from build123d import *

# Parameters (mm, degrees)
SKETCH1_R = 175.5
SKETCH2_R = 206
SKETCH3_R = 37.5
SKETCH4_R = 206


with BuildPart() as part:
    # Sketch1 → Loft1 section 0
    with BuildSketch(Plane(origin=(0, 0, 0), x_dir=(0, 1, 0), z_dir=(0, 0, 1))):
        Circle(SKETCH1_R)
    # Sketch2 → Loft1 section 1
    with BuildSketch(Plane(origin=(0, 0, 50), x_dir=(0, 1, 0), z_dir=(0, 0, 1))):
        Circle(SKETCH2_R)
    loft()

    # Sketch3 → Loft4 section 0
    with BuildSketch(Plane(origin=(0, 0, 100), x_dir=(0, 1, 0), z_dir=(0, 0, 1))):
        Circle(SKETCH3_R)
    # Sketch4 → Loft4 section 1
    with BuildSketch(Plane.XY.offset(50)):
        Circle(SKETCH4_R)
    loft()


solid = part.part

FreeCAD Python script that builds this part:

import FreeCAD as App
import Part
import Sketcher
from FreeCAD import Vector

doc = App.newDocument("Part")
body = doc.addObject("PartDesign::Body", "Body")

sketch1 = doc.addObject("Sketcher::SketchObject", "Sketch")
body.addObject(sketch1)
sketch1.AttachmentSupport = (doc.XY_Plane, [""])
sketch1.MapMode = "FlatFace"
sketch1.addGeometry(Part.Circle(Vector(0, 0, 0), Vector(0, 0, 1), 176), False)
sketch1.addConstraint([
    Sketcher.Constraint("Coincident", 0, 3, -1, 1),
    Sketcher.Constraint("Diameter", 0, 351.0),
])

sketch2 = doc.addObject("Sketcher::SketchObject", "Sketch001")
body.addObject(sketch2)
sketch2.AttachmentSupport = (doc.XY_Plane, [""])
sketch2.MapMode = "FlatFace"
sketch2.AttachmentOffset = App.Placement(Vector(0, 0, 50), App.Rotation())
sketch2.addGeometry(Part.Circle(Vector(0, 0, 0), Vector(0, 0, 1), 206), False)
sketch2.addConstraint([
    Sketcher.Constraint("Coincident", 0, 3, -1, 1),
    Sketcher.Constraint("Diameter", 0, 412.0),
])

additiveloft = doc.addObject("PartDesign::AdditiveLoft", "AdditiveLoft")
body.addObject(additiveloft)
additiveloft.Profile = sketch1
additiveloft.Sections = [sketch2]

sketch3 = doc.addObject("Sketcher::SketchObject", "Sketch002")
body.addObject(sketch3)
sketch3.AttachmentSupport = (doc.XY_Plane, [""])
sketch3.MapMode = "FlatFace"
sketch3.AttachmentOffset = App.Placement(Vector(0, 0, 100), App.Rotation())
sketch3.addGeometry(Part.Circle(Vector(0, 0, 0), Vector(0, 0, 1), 38), False)
sketch3.addConstraint([
    Sketcher.Constraint("Coincident", 0, 3, -1, 1),
    Sketcher.Constraint("Diameter", 0, 75.0),
])

sketch4 = doc.addObject("Sketcher::SketchObject", "Sketch003")
body.addObject(sketch4)
sketch4.AttachmentSupport = (doc.XY_Plane, [""])
sketch4.MapMode = "FlatFace"
sketch4.AttachmentOffset = App.Placement(Vector(0, 0, 50), App.Rotation())
sketch4.addGeometry(Part.Circle(Vector(0, 0, 0), Vector(0, 0, 1), 206), False)
sketch4.addConstraint([
    Sketcher.Constraint("Coincident", 0, 3, -1, 1),
    Sketcher.Constraint("Diameter", 0, 412.0),
])

additiveloft2 = doc.addObject("PartDesign::AdditiveLoft", "AdditiveLoft001")
body.addObject(additiveloft2)
additiveloft2.Profile = sketch3
additiveloft2.Sections = [sketch4]

doc.recompute()
